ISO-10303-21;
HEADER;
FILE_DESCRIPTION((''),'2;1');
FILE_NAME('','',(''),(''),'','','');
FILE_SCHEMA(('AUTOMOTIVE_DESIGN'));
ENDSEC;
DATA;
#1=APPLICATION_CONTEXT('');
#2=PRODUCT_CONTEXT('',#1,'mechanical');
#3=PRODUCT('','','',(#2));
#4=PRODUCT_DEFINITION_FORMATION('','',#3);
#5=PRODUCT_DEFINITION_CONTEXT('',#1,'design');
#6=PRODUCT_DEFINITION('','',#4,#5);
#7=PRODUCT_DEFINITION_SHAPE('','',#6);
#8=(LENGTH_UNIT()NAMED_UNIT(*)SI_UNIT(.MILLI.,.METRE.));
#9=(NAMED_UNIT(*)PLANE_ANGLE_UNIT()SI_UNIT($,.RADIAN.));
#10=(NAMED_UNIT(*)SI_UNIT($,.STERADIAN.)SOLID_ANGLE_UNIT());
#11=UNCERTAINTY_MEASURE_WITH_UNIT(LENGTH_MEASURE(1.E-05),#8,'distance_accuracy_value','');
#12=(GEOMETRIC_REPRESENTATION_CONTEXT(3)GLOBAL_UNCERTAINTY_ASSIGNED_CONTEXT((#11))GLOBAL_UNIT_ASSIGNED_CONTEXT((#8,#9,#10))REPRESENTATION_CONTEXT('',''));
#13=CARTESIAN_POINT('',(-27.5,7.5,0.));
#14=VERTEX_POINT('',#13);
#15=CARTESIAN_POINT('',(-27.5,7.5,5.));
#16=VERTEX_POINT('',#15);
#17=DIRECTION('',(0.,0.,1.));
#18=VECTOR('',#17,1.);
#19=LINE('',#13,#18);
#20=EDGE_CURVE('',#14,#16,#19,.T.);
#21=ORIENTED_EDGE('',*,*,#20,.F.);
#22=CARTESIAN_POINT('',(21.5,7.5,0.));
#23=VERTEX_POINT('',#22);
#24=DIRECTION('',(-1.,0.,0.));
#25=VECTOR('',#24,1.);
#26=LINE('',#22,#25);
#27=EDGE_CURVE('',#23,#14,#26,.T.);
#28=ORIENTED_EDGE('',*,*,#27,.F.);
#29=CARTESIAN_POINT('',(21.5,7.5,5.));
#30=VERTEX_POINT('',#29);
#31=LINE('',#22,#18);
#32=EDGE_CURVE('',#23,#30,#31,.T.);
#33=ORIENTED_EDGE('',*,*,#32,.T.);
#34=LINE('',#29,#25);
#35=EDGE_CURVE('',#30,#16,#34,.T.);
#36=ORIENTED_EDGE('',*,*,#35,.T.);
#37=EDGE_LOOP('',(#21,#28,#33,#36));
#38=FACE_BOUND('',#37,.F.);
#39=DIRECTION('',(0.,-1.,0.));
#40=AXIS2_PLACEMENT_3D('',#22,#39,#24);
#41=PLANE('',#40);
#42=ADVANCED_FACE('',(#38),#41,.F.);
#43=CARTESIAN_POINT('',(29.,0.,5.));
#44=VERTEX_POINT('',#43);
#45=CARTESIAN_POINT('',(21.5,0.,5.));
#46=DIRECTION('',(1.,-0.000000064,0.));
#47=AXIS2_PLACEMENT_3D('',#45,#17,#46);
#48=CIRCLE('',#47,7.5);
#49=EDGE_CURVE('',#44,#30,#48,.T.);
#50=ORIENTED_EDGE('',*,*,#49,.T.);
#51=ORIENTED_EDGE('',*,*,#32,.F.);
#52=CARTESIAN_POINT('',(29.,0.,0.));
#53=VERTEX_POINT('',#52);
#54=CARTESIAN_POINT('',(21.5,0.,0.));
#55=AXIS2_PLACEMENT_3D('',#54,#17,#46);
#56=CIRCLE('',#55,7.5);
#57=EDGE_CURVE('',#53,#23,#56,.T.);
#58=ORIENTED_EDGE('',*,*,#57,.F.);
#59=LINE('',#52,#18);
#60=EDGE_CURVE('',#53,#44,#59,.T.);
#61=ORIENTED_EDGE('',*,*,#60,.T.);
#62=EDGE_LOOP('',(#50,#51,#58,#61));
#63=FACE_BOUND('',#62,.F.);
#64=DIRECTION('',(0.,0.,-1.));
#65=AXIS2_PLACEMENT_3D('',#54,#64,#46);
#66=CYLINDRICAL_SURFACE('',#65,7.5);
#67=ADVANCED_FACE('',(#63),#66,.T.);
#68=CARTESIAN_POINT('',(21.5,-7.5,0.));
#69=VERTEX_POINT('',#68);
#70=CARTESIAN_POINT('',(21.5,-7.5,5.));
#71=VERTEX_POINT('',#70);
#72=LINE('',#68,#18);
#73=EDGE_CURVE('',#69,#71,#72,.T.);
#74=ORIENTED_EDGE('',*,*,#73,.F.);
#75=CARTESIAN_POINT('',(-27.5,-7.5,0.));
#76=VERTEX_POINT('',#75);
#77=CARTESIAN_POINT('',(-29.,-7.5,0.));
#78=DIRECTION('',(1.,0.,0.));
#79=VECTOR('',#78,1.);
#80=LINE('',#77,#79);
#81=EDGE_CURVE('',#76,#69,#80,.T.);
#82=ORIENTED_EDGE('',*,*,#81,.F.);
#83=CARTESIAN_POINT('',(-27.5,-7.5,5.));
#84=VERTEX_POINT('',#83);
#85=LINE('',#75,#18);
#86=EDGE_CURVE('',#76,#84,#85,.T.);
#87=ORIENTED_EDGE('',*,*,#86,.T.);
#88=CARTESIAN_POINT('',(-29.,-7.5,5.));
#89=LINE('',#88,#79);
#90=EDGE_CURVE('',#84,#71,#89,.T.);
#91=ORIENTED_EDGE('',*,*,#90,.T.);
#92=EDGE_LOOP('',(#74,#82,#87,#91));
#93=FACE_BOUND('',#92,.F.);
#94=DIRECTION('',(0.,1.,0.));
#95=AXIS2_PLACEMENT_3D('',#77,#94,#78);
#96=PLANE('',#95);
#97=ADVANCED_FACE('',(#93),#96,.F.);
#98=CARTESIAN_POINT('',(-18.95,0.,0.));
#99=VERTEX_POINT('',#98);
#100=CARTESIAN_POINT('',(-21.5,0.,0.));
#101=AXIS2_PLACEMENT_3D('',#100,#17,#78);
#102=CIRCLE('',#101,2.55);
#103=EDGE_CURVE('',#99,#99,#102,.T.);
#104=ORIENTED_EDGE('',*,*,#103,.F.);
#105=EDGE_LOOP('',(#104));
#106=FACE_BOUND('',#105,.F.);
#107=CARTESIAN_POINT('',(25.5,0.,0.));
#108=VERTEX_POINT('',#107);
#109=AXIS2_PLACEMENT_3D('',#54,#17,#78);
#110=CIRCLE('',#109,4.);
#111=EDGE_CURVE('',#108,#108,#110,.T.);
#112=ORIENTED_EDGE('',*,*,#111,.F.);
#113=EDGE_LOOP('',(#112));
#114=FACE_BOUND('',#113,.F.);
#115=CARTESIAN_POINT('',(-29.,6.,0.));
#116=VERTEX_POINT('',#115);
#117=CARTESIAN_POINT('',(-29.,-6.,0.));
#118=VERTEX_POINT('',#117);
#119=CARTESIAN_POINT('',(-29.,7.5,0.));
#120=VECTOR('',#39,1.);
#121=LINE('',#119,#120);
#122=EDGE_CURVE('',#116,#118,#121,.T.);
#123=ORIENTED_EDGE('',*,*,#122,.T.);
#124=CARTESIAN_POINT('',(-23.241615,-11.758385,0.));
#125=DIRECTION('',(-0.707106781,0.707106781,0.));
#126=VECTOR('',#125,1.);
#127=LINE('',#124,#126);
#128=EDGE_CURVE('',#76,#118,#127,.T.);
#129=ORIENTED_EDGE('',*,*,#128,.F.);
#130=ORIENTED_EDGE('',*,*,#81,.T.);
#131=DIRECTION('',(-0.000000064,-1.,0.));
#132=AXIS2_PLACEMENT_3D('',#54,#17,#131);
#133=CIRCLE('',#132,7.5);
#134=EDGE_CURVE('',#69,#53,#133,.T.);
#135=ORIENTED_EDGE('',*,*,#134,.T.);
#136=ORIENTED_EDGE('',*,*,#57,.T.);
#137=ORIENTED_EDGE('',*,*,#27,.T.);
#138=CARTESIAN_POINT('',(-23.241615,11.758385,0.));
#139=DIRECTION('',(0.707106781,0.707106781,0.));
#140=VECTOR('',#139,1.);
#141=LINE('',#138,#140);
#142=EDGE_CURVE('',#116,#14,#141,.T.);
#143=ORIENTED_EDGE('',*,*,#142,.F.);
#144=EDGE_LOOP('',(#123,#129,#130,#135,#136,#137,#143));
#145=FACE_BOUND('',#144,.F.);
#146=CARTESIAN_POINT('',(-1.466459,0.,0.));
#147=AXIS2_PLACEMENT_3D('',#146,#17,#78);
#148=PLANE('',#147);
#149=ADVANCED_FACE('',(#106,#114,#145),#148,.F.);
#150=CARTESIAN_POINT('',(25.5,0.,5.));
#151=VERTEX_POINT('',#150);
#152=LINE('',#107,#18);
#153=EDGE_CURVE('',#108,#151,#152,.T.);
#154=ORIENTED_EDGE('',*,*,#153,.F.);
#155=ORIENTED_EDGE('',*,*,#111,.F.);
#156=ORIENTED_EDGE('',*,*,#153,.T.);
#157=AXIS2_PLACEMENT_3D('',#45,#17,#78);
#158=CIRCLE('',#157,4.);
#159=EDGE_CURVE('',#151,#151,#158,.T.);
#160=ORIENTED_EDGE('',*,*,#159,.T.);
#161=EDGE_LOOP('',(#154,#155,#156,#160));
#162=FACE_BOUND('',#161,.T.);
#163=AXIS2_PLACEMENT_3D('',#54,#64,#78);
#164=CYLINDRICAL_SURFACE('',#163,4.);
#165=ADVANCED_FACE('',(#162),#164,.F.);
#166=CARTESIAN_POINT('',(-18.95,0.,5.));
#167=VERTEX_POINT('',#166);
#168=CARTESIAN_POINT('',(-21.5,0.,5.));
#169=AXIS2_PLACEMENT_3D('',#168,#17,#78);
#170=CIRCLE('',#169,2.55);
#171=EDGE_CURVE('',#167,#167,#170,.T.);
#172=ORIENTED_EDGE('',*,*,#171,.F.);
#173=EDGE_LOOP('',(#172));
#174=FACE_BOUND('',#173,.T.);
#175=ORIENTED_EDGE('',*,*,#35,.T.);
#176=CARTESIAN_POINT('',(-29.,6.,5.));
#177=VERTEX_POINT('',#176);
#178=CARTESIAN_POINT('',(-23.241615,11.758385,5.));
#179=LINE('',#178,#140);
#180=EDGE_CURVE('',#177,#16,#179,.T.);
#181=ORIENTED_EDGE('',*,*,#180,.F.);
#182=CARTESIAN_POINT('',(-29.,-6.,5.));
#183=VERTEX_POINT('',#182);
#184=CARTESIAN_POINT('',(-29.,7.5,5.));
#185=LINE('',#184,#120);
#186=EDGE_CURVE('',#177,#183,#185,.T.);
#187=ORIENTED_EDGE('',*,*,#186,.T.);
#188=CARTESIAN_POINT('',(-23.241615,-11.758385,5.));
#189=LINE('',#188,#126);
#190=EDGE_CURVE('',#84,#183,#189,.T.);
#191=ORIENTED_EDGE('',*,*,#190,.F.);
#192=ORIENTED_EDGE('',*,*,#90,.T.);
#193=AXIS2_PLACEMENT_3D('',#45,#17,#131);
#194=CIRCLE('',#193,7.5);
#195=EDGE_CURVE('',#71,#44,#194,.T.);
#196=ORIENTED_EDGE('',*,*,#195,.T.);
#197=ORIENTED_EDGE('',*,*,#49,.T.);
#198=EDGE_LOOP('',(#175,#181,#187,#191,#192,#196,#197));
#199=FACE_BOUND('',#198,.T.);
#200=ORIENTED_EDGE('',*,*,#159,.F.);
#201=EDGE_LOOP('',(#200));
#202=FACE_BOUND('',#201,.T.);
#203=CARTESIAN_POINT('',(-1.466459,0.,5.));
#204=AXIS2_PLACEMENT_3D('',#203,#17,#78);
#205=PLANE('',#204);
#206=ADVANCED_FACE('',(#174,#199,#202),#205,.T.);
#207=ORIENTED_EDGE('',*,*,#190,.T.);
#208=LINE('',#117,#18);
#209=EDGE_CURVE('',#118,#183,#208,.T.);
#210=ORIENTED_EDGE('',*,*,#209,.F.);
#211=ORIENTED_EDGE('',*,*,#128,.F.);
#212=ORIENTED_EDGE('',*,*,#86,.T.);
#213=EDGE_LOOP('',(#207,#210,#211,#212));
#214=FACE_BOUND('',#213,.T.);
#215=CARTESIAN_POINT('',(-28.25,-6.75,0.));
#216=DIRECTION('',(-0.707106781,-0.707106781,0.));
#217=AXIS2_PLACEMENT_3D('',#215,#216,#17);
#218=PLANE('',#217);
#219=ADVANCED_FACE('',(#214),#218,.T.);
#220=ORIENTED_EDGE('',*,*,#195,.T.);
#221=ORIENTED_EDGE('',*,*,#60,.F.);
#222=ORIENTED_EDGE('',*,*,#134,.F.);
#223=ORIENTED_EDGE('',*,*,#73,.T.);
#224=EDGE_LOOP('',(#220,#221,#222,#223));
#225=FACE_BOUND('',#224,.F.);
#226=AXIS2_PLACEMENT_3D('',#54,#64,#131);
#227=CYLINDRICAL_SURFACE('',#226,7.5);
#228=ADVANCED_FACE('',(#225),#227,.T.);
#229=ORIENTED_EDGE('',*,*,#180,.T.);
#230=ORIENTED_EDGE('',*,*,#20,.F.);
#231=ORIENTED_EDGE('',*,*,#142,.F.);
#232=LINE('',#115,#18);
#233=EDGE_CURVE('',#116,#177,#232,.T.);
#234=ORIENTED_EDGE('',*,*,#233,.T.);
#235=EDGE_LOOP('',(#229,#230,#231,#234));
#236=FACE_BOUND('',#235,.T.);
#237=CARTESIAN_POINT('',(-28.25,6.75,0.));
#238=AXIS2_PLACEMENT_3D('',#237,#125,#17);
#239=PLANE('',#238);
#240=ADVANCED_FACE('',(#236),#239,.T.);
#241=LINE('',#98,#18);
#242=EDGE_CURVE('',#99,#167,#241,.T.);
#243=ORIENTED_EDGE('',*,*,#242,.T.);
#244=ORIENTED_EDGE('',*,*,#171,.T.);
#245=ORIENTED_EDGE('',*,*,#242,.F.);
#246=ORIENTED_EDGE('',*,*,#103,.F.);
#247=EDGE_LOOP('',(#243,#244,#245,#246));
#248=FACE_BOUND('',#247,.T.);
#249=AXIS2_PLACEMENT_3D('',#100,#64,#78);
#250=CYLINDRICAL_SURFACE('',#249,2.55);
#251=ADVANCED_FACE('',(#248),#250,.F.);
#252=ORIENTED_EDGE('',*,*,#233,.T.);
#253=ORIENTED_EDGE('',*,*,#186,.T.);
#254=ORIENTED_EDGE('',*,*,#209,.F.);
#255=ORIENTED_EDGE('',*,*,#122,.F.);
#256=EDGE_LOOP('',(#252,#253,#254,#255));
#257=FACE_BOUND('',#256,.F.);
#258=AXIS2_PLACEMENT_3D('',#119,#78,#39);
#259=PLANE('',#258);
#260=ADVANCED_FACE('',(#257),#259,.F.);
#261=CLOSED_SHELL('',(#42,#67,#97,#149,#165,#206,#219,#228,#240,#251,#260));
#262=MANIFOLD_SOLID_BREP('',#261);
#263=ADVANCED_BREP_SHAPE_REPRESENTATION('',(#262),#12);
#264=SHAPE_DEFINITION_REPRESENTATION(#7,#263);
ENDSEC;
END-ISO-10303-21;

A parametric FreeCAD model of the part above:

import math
import FreeCAD as App
import Part
import Sketcher


def edges_at(feature, points):
    """Names of the edges that pass closest to the given points."""
    edges = feature.Shape.Edges
    near = lambda p: min(range(len(edges)), key=lambda i: edges[i].distToShape(Part.Vertex(*p))[0])
    return sorted({f"Edge{near(p) + 1}" for p in points})

doc = App.newDocument("Part")
params = doc.addObject("Spreadsheet::Sheet", "Params")
for row, (alias, value) in enumerate([
    ("sketch1_diameter", "8 mm"),
    ("sketch1_diameter2", "5.1 mm"),
    ("sketch1_radius", "7.5 mm"),
    ("sketch1_width", "50.5 mm"),
    ("pad1_length", "5 mm"),
    ("chamfer_size", "1.5 mm"),
], start=1):
    params.set(f"A{row}", alias)
    params.set(f"B{row}", "=" + value)
    params.setAlias(f"B{row}", alias)

body = doc.addObject("PartDesign::Body", "Body")

# Sketch on XY plane
sketch1 = body.newObject("Sketcher::SketchObject", "Sketch")
sketch1.AttachmentSupport = (doc.getObject("XY_Plane"), [""])
sketch1.MapMode = "FlatFace"
sketch1.addGeometry([
    Part.LineSegment(App.Vector(-29, -7.5, 0), App.Vector(21.5, -7.5, 0)),  # 0
    Part.ArcOfCircle(Part.Circle(App.Vector(21.5, 0, 0), App.Vector(0, 0, 1), 7.5), math.radians(-90), math.radians(0)),  # 1
    Part.ArcOfCircle(Part.Circle(App.Vector(21.5, 0, 0), App.Vector(0, 0, 1), 7.5), math.radians(0), math.radians(90)),  # 2
    Part.LineSegment(App.Vector(21.5, 7.5, 0), App.Vector(-29, 7.5, 0)),  # 3
    Part.LineSegment(App.Vector(-29, 7.5, 0), App.Vector(-29, -7.5, 0)),  # 4
    Part.Circle(App.Vector(-21.5, 0, 0), App.Vector(0, 0, 1), 2.5),  # 5
    Part.Circle(App.Vector(21.5, 0, 0), App.Vector(0, 0, 1), 4),  # 6
], False)
sketch1.addConstraint([
    Sketcher.Constraint("Tangent", 0, 2, 1, 1),
    Sketcher.Constraint("Tangent", 1, 2, 2, 1),
    Sketcher.Constraint("Tangent", 2, 2, 3, 1),
    Sketcher.Constraint("Coincident", 3, 2, 4, 1),
    Sketcher.Constraint("Coincident", 4, 2, 0, 1),
    Sketcher.Constraint("Horizontal", 0),
    Sketcher.Constraint("Horizontal", 3),
    Sketcher.Constraint("Vertical", 4),
    Sketcher.Constraint("Coincident", 6, 3, 1, 3),
    Sketcher.Constraint("Equal", 1, 2),
    Sketcher.Constraint("Symmetric", 1, 3, 5, 3, -1, 1),
    Sketcher.Constraint("PointOnObject", 1, 3, -1),
    Sketcher.Constraint("PointOnObject", 1, 2, -1),
    Sketcher.Constraint("Diameter", 6, 8.0),
    Sketcher.Constraint("Diameter", 5, 5.1),
    Sketcher.Constraint("Radius", 1, 7.5),
    Sketcher.Constraint("DistanceX", 0, 1, 0, 2, 50.5),
    Sketcher.Constraint("DistanceX", -1, 1, 1, 2, 29.0),
])
sketch1.setExpression("Constraints[13]", "Params.sketch1_diameter")
sketch1.setExpression("Constraints[14]", "Params.sketch1_diameter2")
sketch1.setExpression("Constraints[15]", "Params.sketch1_radius")
sketch1.setExpression("Constraints[16]", "Params.sketch1_width")
pad1 = body.newObject("PartDesign::Pad", "Pad")
pad1.Profile = sketch1
pad1.setExpression("Length", "Params.pad1_length")
doc.recompute()

chamfer = body.newObject("PartDesign::Chamfer", "Chamfer")
chamfer.Base = (pad1, edges_at(pad1, [(-29, 7.5, 2.5), (-29, -7.5, 2.5)]))
chamfer.setExpression("Size", "Params.chamfer_size")

doc.recompute()
